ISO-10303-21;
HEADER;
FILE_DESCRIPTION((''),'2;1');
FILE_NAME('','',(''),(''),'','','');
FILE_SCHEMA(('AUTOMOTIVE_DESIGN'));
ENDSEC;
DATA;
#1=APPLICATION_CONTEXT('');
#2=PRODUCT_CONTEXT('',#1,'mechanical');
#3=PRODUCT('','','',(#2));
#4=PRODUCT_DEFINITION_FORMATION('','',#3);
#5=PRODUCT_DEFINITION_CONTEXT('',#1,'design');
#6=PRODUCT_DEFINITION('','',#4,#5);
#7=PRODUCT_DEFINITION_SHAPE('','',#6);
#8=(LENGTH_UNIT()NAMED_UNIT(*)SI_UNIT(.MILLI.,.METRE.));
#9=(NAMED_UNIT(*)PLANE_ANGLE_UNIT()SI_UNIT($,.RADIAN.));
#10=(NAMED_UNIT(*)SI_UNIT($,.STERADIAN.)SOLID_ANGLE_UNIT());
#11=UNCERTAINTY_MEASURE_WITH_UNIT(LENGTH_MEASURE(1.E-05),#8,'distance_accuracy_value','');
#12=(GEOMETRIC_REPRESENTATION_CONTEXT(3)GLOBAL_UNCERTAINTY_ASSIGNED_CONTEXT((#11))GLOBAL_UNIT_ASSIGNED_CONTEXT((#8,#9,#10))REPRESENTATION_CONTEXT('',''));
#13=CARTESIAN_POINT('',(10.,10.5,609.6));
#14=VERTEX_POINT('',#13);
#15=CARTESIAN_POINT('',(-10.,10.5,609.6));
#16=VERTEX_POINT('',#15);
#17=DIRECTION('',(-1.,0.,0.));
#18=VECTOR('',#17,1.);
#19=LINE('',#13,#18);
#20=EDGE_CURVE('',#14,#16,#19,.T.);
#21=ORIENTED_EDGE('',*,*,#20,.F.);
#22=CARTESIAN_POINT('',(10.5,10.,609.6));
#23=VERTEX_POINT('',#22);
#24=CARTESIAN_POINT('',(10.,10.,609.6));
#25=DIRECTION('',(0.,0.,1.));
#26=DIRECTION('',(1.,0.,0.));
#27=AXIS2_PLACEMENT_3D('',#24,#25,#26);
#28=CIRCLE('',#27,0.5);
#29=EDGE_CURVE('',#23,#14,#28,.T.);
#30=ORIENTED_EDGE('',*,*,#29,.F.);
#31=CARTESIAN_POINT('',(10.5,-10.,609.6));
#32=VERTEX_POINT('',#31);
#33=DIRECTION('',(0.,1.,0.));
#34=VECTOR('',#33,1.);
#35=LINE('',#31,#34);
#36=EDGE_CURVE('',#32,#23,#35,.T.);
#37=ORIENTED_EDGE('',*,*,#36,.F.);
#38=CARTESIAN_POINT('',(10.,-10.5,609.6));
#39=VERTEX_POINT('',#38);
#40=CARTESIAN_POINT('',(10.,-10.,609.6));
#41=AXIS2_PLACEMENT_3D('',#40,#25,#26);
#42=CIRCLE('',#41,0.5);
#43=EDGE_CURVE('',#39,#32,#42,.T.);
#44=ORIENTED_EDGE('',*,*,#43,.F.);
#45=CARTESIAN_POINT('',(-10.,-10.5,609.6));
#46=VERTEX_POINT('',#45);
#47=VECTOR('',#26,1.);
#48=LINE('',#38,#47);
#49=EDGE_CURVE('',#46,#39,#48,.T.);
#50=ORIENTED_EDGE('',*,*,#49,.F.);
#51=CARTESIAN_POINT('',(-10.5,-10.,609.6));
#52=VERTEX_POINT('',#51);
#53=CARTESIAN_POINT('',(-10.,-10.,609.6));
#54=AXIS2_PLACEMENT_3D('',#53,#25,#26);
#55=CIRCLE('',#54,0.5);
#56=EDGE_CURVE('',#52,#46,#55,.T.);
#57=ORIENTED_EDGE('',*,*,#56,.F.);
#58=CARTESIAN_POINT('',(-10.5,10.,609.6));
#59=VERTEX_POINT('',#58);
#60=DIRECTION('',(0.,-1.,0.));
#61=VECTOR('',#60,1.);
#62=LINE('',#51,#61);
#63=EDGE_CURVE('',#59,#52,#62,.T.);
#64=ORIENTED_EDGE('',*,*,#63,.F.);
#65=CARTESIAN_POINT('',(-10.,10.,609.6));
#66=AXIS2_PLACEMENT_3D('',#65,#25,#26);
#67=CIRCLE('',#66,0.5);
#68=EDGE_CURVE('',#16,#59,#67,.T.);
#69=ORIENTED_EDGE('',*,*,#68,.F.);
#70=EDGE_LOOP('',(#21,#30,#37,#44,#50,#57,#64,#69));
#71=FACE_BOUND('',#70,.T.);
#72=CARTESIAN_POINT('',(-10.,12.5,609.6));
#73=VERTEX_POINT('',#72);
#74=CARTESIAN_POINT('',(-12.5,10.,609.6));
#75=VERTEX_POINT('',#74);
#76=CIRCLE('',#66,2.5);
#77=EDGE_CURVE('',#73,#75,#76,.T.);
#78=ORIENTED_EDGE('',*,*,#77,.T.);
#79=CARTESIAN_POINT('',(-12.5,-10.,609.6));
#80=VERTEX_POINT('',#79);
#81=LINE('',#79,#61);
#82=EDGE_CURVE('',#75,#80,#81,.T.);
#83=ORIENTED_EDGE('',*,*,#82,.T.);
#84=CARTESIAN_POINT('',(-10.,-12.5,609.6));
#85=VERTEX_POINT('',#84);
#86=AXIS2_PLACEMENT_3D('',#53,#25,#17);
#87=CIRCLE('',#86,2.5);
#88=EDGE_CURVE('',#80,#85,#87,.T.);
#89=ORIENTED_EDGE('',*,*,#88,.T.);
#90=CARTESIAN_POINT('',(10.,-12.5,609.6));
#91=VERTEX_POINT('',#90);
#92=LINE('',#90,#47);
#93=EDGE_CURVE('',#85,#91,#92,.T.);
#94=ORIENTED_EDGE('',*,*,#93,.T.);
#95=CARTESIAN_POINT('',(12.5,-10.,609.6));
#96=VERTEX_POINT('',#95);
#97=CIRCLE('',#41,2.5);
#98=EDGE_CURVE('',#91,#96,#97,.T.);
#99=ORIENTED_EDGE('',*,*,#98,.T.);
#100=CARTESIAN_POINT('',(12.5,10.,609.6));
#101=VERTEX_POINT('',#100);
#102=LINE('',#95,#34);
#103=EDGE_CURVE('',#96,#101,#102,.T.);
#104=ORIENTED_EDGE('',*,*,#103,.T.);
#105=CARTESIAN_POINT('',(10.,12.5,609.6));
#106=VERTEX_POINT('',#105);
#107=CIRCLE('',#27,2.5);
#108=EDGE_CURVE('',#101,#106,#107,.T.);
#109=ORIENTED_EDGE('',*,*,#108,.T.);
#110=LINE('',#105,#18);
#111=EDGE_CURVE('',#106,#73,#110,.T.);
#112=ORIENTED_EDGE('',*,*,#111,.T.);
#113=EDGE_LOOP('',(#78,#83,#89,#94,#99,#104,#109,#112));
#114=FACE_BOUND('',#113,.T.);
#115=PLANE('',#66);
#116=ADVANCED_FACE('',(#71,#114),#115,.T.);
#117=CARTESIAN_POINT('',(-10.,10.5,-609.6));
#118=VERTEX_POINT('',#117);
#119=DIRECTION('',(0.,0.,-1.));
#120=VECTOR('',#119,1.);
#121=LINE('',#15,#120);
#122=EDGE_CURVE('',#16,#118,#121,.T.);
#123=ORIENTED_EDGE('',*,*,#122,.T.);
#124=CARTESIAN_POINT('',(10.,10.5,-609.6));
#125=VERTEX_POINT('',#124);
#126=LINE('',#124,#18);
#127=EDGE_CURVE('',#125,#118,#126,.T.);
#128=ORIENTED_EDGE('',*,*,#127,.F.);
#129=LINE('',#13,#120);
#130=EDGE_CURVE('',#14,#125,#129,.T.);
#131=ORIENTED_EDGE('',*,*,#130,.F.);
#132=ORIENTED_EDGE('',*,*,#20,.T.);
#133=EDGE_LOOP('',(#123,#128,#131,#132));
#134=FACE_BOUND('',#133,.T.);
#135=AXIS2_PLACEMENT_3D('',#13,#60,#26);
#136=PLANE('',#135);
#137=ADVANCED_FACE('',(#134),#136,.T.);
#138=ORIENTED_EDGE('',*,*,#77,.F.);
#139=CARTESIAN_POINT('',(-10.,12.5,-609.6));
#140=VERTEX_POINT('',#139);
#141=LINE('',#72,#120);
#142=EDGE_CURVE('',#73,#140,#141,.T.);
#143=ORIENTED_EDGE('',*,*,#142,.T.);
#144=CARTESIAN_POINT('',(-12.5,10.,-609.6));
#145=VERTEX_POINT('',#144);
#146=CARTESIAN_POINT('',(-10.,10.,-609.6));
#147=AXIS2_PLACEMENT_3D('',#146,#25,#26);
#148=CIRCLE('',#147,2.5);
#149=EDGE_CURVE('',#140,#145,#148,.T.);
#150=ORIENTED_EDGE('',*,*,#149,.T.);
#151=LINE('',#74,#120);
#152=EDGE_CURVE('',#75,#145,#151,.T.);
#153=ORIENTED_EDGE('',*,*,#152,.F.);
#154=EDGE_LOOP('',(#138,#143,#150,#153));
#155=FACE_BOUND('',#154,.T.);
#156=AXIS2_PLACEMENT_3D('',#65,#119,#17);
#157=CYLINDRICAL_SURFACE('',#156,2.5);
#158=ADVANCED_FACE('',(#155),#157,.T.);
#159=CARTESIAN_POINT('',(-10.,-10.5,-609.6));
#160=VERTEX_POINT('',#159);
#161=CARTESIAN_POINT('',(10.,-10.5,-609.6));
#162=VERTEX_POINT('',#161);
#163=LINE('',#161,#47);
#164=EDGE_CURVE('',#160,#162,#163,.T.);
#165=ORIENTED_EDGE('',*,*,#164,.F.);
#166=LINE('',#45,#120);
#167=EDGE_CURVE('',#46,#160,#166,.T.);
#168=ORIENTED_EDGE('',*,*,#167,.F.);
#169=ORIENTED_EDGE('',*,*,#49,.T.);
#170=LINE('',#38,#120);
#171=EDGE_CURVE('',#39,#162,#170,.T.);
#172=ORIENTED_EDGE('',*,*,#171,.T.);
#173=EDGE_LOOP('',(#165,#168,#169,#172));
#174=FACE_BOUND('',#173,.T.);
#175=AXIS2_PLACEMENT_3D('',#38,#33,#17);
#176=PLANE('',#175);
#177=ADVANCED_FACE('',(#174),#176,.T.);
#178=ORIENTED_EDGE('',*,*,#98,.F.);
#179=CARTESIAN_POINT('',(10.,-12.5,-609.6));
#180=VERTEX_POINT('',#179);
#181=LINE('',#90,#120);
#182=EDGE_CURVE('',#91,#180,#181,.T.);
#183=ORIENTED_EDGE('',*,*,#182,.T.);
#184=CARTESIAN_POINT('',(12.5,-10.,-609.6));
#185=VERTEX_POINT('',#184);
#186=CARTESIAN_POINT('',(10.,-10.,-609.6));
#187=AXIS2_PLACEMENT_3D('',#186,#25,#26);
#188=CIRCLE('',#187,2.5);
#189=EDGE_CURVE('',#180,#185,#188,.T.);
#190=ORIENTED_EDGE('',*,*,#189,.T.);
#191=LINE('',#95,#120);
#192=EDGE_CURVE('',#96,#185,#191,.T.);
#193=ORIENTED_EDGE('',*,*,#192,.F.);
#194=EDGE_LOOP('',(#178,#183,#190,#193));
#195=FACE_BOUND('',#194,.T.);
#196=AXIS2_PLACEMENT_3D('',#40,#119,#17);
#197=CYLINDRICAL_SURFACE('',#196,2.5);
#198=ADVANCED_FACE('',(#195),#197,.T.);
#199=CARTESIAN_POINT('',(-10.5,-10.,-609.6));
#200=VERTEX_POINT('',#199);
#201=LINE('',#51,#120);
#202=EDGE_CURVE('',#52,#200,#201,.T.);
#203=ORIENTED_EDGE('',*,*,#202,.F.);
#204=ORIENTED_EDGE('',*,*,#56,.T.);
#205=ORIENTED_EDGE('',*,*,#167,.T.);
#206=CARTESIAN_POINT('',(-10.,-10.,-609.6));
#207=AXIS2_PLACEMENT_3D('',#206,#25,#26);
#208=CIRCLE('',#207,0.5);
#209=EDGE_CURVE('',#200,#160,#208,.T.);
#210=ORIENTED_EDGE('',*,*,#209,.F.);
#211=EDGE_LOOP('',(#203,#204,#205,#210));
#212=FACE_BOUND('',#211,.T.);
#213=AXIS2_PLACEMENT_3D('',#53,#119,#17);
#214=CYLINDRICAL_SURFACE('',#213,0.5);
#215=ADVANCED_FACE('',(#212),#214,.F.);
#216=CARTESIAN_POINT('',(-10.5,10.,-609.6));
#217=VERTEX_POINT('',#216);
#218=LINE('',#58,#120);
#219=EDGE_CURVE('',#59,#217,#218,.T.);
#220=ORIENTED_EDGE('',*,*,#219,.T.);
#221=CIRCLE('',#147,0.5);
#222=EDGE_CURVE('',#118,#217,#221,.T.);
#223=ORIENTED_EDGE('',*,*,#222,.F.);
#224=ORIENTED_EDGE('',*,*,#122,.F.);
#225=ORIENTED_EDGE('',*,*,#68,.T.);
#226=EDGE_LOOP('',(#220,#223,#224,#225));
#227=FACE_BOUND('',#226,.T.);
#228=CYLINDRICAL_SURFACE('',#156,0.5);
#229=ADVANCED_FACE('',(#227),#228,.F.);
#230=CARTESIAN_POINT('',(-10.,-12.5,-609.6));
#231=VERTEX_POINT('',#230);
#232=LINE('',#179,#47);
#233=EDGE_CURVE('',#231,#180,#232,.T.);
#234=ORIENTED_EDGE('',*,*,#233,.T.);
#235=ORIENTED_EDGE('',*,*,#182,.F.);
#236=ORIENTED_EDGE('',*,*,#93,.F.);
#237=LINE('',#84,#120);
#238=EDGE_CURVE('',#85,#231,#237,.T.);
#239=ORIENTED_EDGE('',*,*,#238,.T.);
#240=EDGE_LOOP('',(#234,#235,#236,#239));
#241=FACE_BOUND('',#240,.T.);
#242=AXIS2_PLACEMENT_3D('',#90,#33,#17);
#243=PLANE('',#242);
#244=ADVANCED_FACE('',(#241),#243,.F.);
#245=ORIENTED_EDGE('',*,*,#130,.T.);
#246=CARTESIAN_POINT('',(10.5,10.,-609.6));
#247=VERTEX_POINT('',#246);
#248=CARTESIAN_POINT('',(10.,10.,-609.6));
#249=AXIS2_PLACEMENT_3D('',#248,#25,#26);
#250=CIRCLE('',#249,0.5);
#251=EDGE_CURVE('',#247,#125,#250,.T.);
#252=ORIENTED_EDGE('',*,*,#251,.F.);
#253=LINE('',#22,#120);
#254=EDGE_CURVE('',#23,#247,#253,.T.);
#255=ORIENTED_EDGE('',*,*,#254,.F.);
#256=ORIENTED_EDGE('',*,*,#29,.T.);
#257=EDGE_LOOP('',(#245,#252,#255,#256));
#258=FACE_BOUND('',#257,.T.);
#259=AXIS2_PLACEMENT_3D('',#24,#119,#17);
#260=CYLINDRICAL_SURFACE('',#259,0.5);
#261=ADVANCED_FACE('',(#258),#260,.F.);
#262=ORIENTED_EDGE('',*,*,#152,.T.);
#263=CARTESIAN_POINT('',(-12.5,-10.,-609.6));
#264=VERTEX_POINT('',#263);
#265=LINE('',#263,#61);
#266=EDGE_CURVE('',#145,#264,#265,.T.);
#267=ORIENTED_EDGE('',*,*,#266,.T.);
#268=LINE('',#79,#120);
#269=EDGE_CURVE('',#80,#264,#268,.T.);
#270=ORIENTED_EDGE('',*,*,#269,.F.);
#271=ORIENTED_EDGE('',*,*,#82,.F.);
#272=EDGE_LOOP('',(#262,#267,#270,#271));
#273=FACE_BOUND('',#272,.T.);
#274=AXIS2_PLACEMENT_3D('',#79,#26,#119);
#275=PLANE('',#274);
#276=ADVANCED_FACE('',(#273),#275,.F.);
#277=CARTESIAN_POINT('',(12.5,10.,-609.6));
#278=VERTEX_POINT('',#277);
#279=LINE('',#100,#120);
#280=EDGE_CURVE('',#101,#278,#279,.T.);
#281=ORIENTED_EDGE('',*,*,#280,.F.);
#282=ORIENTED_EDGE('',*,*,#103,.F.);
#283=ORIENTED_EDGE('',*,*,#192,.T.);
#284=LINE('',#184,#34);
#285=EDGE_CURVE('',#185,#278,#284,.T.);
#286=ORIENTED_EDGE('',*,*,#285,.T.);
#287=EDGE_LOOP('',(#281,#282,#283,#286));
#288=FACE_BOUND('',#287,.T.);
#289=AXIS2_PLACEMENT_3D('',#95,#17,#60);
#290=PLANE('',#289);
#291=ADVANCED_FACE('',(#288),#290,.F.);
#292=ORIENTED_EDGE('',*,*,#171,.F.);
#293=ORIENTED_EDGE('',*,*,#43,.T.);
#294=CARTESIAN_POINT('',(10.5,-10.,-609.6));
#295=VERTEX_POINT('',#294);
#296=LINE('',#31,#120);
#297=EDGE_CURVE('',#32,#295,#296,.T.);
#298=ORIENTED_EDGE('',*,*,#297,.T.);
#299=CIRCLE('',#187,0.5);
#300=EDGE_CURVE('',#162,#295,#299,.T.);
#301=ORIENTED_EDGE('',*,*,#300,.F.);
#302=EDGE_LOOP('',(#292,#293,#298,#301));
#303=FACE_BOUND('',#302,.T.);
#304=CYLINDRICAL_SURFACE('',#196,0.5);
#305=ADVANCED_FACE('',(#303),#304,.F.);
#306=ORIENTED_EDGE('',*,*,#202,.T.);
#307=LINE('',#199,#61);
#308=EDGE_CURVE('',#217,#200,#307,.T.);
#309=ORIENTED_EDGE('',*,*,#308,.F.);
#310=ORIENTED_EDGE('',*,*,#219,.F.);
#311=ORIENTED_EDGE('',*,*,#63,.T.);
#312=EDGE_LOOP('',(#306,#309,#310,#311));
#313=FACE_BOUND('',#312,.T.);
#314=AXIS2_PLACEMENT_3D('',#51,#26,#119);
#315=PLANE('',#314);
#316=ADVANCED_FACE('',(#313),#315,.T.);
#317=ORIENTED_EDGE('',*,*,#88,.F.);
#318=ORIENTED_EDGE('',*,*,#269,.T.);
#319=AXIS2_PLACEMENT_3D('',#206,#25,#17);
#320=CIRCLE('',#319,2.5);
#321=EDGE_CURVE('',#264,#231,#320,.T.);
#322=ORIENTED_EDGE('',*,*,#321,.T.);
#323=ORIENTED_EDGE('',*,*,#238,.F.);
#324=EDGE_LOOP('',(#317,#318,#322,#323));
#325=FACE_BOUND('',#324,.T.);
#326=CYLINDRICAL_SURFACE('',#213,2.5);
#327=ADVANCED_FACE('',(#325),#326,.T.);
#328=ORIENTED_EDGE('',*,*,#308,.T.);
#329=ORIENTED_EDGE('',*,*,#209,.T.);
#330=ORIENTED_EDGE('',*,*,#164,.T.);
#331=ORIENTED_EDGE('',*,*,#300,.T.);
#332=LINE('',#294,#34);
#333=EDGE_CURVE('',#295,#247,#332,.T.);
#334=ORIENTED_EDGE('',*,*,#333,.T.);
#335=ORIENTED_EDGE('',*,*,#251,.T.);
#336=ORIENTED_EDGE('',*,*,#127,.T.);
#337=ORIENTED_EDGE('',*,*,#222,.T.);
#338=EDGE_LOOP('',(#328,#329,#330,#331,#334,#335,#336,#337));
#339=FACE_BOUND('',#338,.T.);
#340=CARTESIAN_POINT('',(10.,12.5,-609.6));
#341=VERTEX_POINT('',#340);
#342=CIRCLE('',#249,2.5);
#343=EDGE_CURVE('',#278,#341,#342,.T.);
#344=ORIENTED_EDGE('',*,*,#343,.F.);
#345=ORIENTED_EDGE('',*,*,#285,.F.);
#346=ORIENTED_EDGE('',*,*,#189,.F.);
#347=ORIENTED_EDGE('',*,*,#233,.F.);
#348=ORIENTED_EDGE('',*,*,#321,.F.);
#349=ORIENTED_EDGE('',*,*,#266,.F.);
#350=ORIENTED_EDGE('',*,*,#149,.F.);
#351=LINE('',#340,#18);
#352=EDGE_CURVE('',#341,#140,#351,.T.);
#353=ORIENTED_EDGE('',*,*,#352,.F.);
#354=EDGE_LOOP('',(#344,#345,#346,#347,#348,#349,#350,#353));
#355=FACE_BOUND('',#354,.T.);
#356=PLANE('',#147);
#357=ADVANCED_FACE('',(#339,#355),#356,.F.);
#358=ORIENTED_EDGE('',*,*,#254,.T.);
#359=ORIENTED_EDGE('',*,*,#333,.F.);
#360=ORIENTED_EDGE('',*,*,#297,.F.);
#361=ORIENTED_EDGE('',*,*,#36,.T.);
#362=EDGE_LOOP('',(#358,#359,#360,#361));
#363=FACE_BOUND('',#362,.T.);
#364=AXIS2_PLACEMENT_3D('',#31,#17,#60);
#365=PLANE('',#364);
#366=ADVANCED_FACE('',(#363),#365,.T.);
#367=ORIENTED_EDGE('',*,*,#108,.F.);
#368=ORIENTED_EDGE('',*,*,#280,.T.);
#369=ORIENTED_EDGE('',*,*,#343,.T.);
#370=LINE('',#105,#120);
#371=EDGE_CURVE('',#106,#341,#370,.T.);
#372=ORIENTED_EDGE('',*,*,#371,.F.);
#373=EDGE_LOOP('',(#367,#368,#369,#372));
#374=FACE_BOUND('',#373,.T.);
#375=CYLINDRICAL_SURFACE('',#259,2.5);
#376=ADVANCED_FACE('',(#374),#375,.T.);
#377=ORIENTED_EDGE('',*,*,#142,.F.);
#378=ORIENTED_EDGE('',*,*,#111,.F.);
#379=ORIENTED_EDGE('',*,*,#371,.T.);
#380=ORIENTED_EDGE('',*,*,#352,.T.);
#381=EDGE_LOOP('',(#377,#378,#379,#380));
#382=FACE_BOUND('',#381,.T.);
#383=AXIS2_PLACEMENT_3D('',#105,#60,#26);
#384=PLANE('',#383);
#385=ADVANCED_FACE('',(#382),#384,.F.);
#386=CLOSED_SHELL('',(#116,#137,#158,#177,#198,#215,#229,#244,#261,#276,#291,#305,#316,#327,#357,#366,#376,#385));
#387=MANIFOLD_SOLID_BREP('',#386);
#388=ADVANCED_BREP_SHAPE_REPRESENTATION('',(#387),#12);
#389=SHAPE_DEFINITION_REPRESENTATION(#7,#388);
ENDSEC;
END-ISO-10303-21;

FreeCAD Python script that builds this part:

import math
import FreeCAD as App
import Part
import Sketcher

V = App.Vector
Q = App.Units.Quantity

doc = App.newDocument("Part")
body = doc.addObject("PartDesign::Body", "Body")

sketch1 = body.newObject("Sketcher::SketchObject", "Sketch")
sketch1.AttachmentSupport = (doc.getObject("XY_Plane"), [""])
sketch1.MapMode = "FlatFace"
sketch1.addGeometry(Part.LineSegment(V(-12.5, 10, 0), V(-12.5, -10, 0)), False)
sketch1.addGeometry(Part.ArcOfCircle(Part.Circle(V(-10, -10, 0), V(0, 0, 1), 2.5), math.radians(180), math.radians(270)), False)
sketch1.addGeometry(Part.LineSegment(V(-10, -12.5, 0), V(10, -12.5, 0)), False)
sketch1.addGeometry(Part.ArcOfCircle(Part.Circle(V(10, -10, 0), V(0, 0, 1), 2.5), math.radians(-90), math.radians(0)), False)
sketch1.addGeometry(Part.LineSegment(V(12.5, -10, 0), V(12.5, 10, 0)), False)
sketch1.addGeometry(Part.ArcOfCircle(Part.Circle(V(10, 10, 0), V(0, 0, 1), 2.5), math.radians(0), math.radians(90)), False)
sketch1.addGeometry(Part.LineSegment(V(10, 12.5, 0), V(-10, 12.5, 0)), False)
sketch1.addGeometry(Part.ArcOfCircle(Part.Circle(V(-10, 10, 0), V(0, 0, 1), 2.5), math.radians(90), math.radians(180)), False)
sketch1.addGeometry(Part.LineSegment(V(-10.5, -10, 0), V(-10.5, 10, 0)), False)
sketch1.addGeometry(Part.ArcOfCircle(Part.Circle(V(-10, 10, 0), V(0, 0, 1), 0.5), math.radians(90), math.radians(180)), False)
sketch1.addGeometry(Part.LineSegment(V(-10, 10.5, 0), V(10, 10.5, 0)), False)
sketch1.addGeometry(Part.ArcOfCircle(Part.Circle(V(10, 10, 0), V(0, 0, 1), 0.5), math.radians(0), math.radians(90)), False)
sketch1.addGeometry(Part.LineSegment(V(10.5, 10, 0), V(10.5, -10, 0)), False)
sketch1.addGeometry(Part.ArcOfCircle(Part.Circle(V(10, -10, 0), V(0, 0, 1), 0.5), math.radians(-90), math.radians(0)), False)
sketch1.addGeometry(Part.LineSegment(V(10, -10.5, 0), V(-10, -10.5, 0)), False)
sketch1.addGeometry(Part.ArcOfCircle(Part.Circle(V(-10, -10, 0), V(0, 0, 1), 0.5), math.radians(180), math.radians(270)), False)
sketch1.addConstraint(Sketcher.Constraint("Tangent", 0, 2, 1, 1))
sketch1.addConstraint(Sketcher.Constraint("Tangent", 1, 2, 2, 1))
sketch1.addConstraint(Sketcher.Constraint("Tangent", 2, 2, 3, 1))
sketch1.addConstraint(Sketcher.Constraint("Tangent", 3, 2, 4, 1))
sketch1.addConstraint(Sketcher.Constraint("Tangent", 4, 2, 5, 1))
sketch1.addConstraint(Sketcher.Constraint("Tangent", 5, 2, 6, 1))
sketch1.addConstraint(Sketcher.Constraint("Tangent", 6, 2, 7, 1))
sketch1.addConstraint(Sketcher.Constraint("Tangent", 7, 2, 0, 1))
sketch1.addConstraint(Sketcher.Constraint("Tangent", 8, 2, 9, 2))
sketch1.addConstraint(Sketcher.Constraint("Tangent", 9, 1, 10, 1))
sketch1.addConstraint(Sketcher.Constraint("Tangent", 10, 2, 11, 2))
sketch1.addConstraint(Sketcher.Constraint("Tangent", 11, 1, 12, 1))
sketch1.addConstraint(Sketcher.Constraint("Tangent", 12, 2, 13, 2))
sketch1.addConstraint(Sketcher.Constraint("Tangent", 13, 1, 14, 1))
sketch1.addConstraint(Sketcher.Constraint("Tangent", 14, 2, 15, 2))
sketch1.addConstraint(Sketcher.Constraint("Tangent", 15, 1, 8, 1))
sketch1.addConstraint(Sketcher.Constraint("Vertical", 0))
sketch1.addConstraint(Sketcher.Constraint("Horizontal", 2))
sketch1.addConstraint(Sketcher.Constraint("Vertical", 4))
sketch1.addConstraint(Sketcher.Constraint("Horizontal", 6))
sketch1.addConstraint(Sketcher.Constraint("Vertical", 8))
sketch1.addConstraint(Sketcher.Constraint("Horizontal", 10))
sketch1.addConstraint(Sketcher.Constraint("Vertical", 12))
sketch1.addConstraint(Sketcher.Constraint("Horizontal", 14))
sketch1.addConstraint(Sketcher.Constraint("Coincident", 9, 3, 7, 3))
sketch1.addConstraint(Sketcher.Constraint("Coincident", 11, 3, 5, 3))
sketch1.addConstraint(Sketcher.Constraint("Coincident", 13, 3, 3, 3))
sketch1.addConstraint(Sketcher.Constraint("Equal", 1, 3))
sketch1.addConstraint(Sketcher.Constraint("Equal", 3, 5))
sketch1.addConstraint(Sketcher.Constraint("Equal", 5, 7))
sketch1.addConstraint(Sketcher.Constraint("Equal", 13, 15))
sketch1.addConstraint(Sketcher.Constraint("Symmetric", 1, 3, 5, 3, -1, 1))
sketch1.addConstraint(Sketcher.Constraint("Equal", 14, 0))
sketch1.addConstraint(Sketcher.Constraint("Radius", 1, Q("2.5 mm")))
sketch1.addConstraint(Sketcher.Constraint("Radius", 9, Q("0.5 mm")))
sketch1.addConstraint(Sketcher.Constraint("DistanceX", 2, 1, 2, 2, Q("20 mm")))
pad1 = body.newObject("PartDesign::Pad", "Pad")
pad1.Profile = sketch1
pad1.Length = 1219.2
pad1.Midplane = True

doc.recompute()
